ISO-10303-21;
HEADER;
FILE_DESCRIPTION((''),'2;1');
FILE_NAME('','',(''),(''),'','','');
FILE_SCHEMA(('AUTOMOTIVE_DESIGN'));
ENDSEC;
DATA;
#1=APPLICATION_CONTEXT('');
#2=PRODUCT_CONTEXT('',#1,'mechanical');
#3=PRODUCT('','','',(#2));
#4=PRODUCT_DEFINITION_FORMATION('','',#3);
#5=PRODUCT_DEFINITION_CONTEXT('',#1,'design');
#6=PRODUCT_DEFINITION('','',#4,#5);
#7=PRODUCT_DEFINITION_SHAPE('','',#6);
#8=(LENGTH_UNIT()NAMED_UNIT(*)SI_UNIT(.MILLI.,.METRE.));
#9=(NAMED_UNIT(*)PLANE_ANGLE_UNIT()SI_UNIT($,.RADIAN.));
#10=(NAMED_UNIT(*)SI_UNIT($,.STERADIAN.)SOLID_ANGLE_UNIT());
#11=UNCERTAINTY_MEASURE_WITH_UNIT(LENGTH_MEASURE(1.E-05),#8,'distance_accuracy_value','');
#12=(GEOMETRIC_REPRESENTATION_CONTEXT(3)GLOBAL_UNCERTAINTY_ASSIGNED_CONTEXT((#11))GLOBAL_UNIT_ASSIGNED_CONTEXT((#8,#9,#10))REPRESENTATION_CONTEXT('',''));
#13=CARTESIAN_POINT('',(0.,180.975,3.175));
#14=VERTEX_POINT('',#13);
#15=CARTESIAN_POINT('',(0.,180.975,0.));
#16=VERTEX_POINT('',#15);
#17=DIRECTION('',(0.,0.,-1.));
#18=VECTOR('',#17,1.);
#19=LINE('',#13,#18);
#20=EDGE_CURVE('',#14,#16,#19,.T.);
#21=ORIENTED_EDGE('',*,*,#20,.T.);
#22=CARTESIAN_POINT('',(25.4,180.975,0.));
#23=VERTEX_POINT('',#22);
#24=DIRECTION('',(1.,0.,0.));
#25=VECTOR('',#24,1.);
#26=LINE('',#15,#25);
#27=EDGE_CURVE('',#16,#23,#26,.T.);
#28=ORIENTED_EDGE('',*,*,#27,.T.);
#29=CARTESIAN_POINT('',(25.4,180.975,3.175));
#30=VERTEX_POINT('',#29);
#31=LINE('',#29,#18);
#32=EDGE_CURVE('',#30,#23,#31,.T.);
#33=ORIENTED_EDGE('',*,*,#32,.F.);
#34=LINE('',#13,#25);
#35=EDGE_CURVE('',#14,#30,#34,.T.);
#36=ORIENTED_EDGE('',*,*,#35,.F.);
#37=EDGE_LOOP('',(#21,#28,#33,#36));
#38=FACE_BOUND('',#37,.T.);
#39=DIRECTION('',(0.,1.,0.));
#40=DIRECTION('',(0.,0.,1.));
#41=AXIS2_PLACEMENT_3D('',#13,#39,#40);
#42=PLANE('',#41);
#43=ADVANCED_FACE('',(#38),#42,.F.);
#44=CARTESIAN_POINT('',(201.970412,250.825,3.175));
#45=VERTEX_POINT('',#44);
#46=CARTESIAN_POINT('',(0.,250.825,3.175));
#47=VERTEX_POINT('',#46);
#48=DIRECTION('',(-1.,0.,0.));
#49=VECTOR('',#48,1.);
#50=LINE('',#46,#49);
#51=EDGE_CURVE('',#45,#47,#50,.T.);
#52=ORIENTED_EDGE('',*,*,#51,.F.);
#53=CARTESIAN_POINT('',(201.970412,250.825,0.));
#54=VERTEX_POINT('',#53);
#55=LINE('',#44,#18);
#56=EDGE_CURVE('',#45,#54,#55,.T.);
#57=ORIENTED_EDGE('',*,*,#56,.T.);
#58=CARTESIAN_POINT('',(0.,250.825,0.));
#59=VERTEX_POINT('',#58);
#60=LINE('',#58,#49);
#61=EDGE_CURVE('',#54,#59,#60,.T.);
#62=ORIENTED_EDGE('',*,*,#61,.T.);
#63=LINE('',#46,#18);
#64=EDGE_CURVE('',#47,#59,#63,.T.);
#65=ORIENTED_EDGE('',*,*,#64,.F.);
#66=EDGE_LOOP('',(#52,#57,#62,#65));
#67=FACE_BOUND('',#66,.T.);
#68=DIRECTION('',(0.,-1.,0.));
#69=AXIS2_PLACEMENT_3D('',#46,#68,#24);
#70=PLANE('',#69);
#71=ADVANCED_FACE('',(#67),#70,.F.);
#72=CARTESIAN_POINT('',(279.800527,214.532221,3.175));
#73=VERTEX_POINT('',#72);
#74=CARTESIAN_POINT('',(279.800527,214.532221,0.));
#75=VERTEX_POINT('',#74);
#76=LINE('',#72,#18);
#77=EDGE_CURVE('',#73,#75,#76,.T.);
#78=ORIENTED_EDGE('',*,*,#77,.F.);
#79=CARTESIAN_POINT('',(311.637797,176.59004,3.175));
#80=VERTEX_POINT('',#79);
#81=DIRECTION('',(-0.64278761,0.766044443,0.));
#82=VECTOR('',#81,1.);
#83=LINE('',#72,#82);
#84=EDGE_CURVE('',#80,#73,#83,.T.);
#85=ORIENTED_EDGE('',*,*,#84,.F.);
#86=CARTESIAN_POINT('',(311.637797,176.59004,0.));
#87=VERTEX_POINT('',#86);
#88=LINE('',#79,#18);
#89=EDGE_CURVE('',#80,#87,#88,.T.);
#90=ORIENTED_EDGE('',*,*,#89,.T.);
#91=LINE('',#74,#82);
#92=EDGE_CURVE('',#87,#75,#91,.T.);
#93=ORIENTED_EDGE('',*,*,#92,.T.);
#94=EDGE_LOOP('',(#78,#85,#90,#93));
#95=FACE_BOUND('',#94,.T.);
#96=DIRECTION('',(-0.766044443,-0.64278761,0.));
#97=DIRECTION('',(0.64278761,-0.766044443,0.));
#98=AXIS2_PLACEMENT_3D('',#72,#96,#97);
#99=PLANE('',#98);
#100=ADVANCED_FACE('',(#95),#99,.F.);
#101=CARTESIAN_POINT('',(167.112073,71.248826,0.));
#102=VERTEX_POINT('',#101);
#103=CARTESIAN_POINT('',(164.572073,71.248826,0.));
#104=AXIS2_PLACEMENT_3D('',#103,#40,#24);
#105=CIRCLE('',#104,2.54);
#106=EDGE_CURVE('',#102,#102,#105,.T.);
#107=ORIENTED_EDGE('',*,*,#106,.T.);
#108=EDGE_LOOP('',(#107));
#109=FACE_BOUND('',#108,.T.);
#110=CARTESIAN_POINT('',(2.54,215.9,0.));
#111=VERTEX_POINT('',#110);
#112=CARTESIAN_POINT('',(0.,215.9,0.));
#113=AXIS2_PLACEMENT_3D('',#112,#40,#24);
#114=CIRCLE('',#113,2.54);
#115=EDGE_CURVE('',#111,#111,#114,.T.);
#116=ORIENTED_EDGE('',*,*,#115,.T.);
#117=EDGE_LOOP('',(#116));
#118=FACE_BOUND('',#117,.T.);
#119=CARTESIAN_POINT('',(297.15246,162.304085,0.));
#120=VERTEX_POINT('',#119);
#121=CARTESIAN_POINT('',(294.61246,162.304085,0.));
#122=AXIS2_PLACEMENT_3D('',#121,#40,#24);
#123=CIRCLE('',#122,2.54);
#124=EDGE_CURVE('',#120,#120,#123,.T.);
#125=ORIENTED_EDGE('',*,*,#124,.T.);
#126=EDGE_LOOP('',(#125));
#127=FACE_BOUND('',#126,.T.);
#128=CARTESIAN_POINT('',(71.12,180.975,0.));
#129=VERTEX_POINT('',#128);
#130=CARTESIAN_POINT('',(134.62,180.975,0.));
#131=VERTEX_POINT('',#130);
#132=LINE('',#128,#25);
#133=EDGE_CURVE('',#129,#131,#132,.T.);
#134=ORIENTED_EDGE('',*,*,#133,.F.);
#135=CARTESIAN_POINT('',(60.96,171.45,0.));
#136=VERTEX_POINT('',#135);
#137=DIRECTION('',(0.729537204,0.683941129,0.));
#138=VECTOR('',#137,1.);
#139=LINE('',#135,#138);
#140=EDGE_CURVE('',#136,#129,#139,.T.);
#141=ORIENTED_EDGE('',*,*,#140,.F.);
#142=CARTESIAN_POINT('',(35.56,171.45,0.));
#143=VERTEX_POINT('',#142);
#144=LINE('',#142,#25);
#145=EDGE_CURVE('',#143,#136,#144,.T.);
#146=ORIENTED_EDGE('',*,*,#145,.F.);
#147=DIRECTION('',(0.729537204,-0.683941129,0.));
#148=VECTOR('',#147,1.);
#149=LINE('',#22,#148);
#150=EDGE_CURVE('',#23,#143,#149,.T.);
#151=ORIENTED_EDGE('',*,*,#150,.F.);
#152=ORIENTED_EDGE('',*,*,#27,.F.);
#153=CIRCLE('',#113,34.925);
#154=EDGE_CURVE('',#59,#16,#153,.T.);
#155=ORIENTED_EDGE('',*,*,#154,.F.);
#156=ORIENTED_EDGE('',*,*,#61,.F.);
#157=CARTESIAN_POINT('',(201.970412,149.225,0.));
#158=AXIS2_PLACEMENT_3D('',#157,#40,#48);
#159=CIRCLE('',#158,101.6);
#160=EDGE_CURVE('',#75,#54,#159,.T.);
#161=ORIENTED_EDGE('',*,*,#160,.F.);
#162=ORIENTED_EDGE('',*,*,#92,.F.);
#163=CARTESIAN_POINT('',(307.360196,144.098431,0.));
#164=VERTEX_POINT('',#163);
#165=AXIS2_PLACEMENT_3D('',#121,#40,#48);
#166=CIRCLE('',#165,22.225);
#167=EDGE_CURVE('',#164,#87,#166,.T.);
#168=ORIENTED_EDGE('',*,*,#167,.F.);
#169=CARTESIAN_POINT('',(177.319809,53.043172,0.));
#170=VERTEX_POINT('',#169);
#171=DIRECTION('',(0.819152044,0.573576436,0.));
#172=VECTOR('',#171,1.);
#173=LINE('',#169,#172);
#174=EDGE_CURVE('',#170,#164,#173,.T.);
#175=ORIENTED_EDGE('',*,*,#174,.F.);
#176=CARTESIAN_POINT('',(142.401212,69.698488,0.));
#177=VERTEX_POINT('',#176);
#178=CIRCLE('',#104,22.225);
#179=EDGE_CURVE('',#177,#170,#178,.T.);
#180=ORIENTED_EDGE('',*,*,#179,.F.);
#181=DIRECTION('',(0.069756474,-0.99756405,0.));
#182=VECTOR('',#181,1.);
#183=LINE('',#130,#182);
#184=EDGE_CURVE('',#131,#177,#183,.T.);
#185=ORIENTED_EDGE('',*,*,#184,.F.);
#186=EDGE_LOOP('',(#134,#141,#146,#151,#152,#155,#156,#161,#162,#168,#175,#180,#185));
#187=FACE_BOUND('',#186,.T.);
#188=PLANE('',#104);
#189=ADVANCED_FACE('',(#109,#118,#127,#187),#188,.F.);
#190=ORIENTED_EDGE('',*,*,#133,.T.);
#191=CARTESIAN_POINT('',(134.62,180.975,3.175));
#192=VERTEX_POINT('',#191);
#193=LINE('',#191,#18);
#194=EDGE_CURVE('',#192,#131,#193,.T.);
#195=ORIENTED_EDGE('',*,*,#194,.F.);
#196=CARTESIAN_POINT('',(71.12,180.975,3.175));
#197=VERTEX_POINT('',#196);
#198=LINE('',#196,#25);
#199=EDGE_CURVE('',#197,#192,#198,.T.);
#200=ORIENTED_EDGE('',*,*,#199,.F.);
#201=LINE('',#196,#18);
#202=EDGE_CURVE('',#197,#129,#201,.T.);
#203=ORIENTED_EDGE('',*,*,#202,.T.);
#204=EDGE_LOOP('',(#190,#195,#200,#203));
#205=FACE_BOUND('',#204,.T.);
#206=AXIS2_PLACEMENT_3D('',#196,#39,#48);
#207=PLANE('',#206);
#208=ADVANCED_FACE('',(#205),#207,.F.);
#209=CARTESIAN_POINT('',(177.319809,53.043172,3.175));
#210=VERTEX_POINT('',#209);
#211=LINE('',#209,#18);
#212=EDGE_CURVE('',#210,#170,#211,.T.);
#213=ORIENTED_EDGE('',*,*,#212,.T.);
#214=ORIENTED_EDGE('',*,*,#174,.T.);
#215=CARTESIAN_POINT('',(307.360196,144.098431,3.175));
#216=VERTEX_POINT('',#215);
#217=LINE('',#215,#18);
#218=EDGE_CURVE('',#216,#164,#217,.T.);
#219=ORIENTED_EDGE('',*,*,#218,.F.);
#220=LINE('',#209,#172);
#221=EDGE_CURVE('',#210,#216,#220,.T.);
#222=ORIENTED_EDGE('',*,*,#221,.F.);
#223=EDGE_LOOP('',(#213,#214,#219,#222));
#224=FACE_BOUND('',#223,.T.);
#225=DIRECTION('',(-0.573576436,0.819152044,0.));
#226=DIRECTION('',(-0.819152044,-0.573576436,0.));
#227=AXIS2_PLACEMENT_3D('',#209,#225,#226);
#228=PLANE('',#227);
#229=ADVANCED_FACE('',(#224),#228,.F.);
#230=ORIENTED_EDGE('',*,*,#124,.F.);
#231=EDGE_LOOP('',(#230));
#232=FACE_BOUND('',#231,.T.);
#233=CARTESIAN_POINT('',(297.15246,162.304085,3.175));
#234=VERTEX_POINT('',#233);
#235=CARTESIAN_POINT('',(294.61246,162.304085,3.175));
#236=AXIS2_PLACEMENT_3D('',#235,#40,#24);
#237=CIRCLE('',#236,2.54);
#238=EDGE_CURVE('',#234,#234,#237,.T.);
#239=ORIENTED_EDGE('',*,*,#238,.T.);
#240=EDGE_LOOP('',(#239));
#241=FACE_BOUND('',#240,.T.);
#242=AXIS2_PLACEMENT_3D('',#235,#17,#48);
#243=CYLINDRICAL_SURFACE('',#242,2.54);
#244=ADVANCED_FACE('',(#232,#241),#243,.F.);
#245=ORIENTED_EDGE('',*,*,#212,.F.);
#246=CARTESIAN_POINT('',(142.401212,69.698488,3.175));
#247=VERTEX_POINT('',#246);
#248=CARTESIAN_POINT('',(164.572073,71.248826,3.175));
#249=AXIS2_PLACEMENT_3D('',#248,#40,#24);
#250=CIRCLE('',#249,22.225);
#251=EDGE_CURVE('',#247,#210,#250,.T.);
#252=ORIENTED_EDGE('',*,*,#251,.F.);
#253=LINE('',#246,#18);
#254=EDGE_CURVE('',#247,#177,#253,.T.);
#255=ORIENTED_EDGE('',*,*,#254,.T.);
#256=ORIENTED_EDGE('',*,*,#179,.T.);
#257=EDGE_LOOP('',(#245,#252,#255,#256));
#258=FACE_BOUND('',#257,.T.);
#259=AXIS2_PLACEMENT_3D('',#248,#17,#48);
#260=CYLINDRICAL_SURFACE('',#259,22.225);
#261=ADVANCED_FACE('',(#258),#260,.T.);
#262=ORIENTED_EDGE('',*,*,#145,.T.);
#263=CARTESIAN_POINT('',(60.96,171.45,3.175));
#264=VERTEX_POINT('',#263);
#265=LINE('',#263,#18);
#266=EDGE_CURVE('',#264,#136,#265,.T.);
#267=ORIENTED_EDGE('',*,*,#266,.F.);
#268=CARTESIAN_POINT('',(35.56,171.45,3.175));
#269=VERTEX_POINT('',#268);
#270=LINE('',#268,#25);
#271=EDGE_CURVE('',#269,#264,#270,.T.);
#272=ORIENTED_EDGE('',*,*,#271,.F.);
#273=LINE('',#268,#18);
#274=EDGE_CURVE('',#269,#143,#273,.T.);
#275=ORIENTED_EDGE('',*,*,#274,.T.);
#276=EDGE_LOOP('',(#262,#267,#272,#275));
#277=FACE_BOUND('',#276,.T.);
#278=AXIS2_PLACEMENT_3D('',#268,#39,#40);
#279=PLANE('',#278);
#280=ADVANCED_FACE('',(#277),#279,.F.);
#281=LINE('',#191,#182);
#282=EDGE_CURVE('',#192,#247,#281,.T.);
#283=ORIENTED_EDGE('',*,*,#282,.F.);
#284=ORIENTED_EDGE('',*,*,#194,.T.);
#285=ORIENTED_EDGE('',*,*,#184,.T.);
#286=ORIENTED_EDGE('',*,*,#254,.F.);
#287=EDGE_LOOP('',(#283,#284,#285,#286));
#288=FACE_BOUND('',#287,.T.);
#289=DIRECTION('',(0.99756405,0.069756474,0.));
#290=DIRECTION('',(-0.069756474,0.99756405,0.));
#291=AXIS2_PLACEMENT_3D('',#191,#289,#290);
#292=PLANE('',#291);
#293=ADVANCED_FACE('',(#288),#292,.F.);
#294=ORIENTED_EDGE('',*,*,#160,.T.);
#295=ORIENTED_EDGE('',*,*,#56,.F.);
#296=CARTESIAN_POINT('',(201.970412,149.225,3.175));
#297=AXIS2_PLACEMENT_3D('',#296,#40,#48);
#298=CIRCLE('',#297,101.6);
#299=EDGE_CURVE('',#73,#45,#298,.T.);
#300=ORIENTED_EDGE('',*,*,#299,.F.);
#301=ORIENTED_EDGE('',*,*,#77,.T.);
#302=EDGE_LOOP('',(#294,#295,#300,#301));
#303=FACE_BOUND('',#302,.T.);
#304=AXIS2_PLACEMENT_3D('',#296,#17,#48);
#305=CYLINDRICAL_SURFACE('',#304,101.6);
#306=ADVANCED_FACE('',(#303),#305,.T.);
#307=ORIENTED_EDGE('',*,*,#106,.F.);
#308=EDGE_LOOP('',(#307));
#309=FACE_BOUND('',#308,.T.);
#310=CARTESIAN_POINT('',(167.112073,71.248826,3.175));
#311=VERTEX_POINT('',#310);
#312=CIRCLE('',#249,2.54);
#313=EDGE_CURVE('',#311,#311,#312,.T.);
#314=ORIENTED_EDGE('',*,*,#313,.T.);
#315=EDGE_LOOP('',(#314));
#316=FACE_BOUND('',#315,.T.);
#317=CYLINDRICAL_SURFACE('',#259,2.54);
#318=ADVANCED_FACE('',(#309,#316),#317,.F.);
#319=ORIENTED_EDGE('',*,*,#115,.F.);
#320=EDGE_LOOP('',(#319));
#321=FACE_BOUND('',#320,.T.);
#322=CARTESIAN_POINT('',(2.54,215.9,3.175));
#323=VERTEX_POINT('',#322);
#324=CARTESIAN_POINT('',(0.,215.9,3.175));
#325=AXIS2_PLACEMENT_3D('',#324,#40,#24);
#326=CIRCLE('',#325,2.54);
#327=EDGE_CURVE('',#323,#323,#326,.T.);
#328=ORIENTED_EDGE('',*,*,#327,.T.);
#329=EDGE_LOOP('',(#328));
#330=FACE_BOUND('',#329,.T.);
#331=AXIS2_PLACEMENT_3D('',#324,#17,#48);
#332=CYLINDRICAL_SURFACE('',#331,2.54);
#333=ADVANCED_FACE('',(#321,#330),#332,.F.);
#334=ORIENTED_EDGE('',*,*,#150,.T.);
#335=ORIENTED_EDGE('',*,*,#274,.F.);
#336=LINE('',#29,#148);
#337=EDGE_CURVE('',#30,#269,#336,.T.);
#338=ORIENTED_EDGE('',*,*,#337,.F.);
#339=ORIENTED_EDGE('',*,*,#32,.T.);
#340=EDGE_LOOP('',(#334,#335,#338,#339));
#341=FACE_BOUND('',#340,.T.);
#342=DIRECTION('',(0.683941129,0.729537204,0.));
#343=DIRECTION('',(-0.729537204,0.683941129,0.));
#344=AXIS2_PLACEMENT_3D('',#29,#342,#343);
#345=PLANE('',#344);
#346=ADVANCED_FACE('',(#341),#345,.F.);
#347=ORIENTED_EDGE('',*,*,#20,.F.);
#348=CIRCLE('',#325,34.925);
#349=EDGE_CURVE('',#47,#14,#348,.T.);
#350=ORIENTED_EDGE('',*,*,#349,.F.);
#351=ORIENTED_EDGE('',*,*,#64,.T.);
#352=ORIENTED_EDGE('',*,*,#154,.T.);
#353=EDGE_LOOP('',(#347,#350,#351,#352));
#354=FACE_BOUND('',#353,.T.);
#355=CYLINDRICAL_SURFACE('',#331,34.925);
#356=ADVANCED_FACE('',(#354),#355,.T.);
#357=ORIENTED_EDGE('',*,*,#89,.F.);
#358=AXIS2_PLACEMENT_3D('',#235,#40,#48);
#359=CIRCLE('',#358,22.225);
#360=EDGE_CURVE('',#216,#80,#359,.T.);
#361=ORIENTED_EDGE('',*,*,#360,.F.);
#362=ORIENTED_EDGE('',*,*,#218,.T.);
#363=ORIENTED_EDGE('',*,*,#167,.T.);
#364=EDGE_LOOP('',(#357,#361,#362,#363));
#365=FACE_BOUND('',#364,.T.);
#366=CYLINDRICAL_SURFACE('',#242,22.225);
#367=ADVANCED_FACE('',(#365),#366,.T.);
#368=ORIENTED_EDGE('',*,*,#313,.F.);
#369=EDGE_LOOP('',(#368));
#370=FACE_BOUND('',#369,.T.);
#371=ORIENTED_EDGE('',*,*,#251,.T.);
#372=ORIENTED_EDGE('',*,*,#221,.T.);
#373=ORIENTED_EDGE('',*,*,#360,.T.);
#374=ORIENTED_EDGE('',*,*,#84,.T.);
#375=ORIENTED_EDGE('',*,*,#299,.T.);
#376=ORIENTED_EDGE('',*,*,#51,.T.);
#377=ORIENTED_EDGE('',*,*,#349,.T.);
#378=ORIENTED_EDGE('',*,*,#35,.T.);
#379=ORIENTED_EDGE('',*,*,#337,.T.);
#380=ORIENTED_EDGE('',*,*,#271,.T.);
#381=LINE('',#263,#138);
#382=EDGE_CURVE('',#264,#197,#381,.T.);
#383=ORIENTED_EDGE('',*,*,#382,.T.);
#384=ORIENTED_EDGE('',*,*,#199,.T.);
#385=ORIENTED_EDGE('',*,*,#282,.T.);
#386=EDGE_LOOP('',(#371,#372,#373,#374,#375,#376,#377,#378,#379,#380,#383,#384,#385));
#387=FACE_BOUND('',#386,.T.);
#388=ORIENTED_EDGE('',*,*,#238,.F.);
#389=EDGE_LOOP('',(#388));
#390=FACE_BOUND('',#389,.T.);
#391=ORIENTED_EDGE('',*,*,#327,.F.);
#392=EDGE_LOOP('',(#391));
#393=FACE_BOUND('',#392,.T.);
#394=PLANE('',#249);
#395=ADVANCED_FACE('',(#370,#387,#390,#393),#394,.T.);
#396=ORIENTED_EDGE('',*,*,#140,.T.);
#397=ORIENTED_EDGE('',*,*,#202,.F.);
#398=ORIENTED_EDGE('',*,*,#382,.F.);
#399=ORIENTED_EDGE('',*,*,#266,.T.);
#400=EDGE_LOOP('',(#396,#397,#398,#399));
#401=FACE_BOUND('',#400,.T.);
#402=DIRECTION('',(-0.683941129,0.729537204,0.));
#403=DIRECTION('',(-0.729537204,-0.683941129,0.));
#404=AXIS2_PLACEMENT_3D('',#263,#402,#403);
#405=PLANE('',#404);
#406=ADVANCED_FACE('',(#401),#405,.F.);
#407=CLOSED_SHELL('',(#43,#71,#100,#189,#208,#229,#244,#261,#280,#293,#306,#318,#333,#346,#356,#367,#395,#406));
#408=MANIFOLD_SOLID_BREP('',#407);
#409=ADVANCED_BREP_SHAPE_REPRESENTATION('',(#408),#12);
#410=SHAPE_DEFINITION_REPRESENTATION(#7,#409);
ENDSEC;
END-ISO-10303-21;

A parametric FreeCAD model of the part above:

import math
import FreeCAD as App
import Part
import Sketcher
Q = App.Units.Quantity

doc = App.newDocument("Part")
body = doc.addObject("PartDesign::Body", "Body")

sketch1 = body.newObject("Sketcher::SketchObject", "Sketch")
sketch1.AttachmentSupport = (doc.getObject("XY_Plane"), [""])
sketch1.MapMode = "FlatFace"
sketch1.addGeometry([
    Part.LineSegment(App.Vector(134.62, 180.975, 0), App.Vector(142.401212, 69.698488, 0)),
    Part.ArcOfCircle(Part.Circle(App.Vector(164.572073, 71.248826, 0), App.Vector(0, 0, 1), 22.225), math.radians(-176), math.radians(-55)),
    Part.LineSegment(App.Vector(177.319809, 53.043172, 0), App.Vector(307.360196, 144.098431, 0)),
    Part.ArcOfCircle(Part.Circle(App.Vector(294.61246, 162.304085, 0), App.Vector(0, 0, 1), 22.225), math.radians(-55), math.radians(40)),
    Part.LineSegment(App.Vector(311.637797, 176.59004, 0), App.Vector(279.800527, 214.532221, 0)),
    Part.ArcOfCircle(Part.Circle(App.Vector(201.970412, 149.225, 0), App.Vector(0, 0, 1), 101.6), math.radians(40), math.radians(90)),
    Part.LineSegment(App.Vector(201.970412, 250.825, 0), App.Vector(0, 250.825, 0)),
    Part.ArcOfCircle(Part.Circle(App.Vector(0, 215.9, 0), App.Vector(0, 0, 1), 34.925), math.radians(90), math.radians(270)),
    Part.LineSegment(App.Vector(0, 180.975, 0), App.Vector(25.4, 180.975, 0)),
    Part.LineSegment(App.Vector(25.4, 180.975, 0), App.Vector(35.56, 171.45, 0)),
    Part.LineSegment(App.Vector(35.56, 171.45, 0), App.Vector(60.96, 171.45, 0)),
    Part.LineSegment(App.Vector(60.96, 171.45, 0), App.Vector(71.12, 180.975, 0)),
    Part.LineSegment(App.Vector(71.12, 180.975, 0), App.Vector(134.62, 180.975, 0)),
    Part.Circle(App.Vector(164.572073, 71.248826, 0), App.Vector(0, 0, 1), 2.54),
    Part.Circle(App.Vector(0, 215.9, 0), App.Vector(0, 0, 1), 2.54),
    Part.Circle(App.Vector(294.61246, 162.304085, 0), App.Vector(0, 0, 1), 2.54),
], False)
sketch1.addConstraint([
    Sketcher.Constraint("Tangent", 0, 2, 1, 1),
    Sketcher.Constraint("Tangent", 1, 2, 2, 1),
    Sketcher.Constraint("Tangent", 2, 2, 3, 1),
    Sketcher.Constraint("Tangent", 3, 2, 4, 1),
    Sketcher.Constraint("Tangent", 4, 2, 5, 1),
    Sketcher.Constraint("Tangent", 5, 2, 6, 1),
    Sketcher.Constraint("Tangent", 6, 2, 7, 1),
    Sketcher.Constraint("Tangent", 7, 2, 8, 1),
    Sketcher.Constraint("Coincident", 8, 2, 9, 1),
    Sketcher.Constraint("Coincident", 9, 2, 10, 1),
    Sketcher.Constraint("Coincident", 10, 2, 11, 1),
    Sketcher.Constraint("Coincident", 11, 2, 12, 1),
    Sketcher.Constraint("Coincident", 12, 2, 0, 1),
    Sketcher.Constraint("Horizontal", 6),
    Sketcher.Constraint("Horizontal", 8),
    Sketcher.Constraint("Horizontal", 10),
    Sketcher.Constraint("Horizontal", 12),
    Sketcher.Constraint("Coincident", 13, 3, 1, 3),
    Sketcher.Constraint("Coincident", 14, 3, 7, 3),
    Sketcher.Constraint("Coincident", 15, 3, 3, 3),
    Sketcher.Constraint("Equal", 1, 3),
    Sketcher.Constraint("Equal", 13, 14),
    Sketcher.Constraint("Equal", 14, 15),
    Sketcher.Constraint("PointOnObject", 7, 3, -2),
    Sketcher.Constraint("Horizontal", 8, 2, 11, 2),
    Sketcher.Constraint("Equal", 8, 10),
    Sketcher.Constraint("Equal", 9, 11),
    Sketcher.Constraint("Radius", 5, Q("4 in")),
    Sketcher.Constraint("Diameter", 13, Q("0.2 in")),
    Sketcher.Constraint("DistanceX", 8, 1, 8, 2, Q("1 in")),
    Sketcher.Constraint("DistanceX", 12, 1, 12, 2, Q("2.5 in")),
    Sketcher.Constraint("Angle", 0, Q("-86 deg")),
    Sketcher.Constraint("Angle", 2, Q("35 deg")),
    Sketcher.Constraint("Angle", 4, Q("130 deg")),
    Sketcher.Constraint("Radius", 1, Q("0.875 in")),
    Sketcher.Constraint("Radius", 7, Q("1.375 in")),
    Sketcher.Constraint("DistanceY", -1, 1, 7, 3, Q("8.5 in")),
    Sketcher.Constraint("DistanceX", -1, 1, 9, 2, Q("1.4 in")),
    Sketcher.Constraint("Distance", 2, Q("6.25 in")),
    Sketcher.Constraint("Distance", 4, Q("1.95 in")),
    Sketcher.Constraint("DistanceY", -1, 1, 9, 2, Q("6.75 in")),
])
pad1 = body.newObject("PartDesign::Pad", "Pad")
pad1.Profile = sketch1
pad1.Length = Q("0.125 in")

doc.recompute()
